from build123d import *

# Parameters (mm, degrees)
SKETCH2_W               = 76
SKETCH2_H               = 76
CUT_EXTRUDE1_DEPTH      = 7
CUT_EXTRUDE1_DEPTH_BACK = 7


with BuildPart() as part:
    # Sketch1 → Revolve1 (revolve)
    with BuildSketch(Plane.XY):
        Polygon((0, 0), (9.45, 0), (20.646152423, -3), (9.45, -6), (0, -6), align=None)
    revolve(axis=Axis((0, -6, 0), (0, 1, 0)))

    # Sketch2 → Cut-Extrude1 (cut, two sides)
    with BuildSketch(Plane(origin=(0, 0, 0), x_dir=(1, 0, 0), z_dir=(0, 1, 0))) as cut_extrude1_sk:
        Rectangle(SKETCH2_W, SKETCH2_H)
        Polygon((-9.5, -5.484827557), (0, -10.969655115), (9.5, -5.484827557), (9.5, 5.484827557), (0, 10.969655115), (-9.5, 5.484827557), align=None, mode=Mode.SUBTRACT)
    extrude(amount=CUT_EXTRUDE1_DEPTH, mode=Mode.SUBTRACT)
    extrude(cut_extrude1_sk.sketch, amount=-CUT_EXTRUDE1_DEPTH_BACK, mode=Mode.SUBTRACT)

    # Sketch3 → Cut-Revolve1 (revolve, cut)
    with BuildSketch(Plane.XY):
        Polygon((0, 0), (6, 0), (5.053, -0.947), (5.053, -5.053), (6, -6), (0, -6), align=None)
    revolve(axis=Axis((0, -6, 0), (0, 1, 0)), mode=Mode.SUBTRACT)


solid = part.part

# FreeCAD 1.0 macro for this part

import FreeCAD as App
import Part
import Sketcher
Q = App.Units.Quantity


def add_polygon(sketch, points):
    """Adds a closed chain of lines whose ends are joined by coincident constraints."""
    first, n = sketch.GeometryCount, len(points)
    for a, b in zip(points, points[1:] + points[:1]):
        sketch.addGeometry(Part.LineSegment(App.Vector(*a, 0), App.Vector(*b, 0)), False)
    for i in range(n):
        sketch.addConstraint(Sketcher.Constraint("Coincident", first + i, 2, first + (i + 1) % n, 1))

doc = App.newDocument("Part")
body = doc.addObject("PartDesign::Body", "Body")

sketch1 = body.newObject("Sketcher::SketchObject", "Sketch")
sketch1.AttachmentSupport = (doc.getObject("XY_Plane"), [""])
sketch1.MapMode = "FlatFace"
add_polygon(sketch1, [(9, 0), (0, 0), (0, -6), (9, -6), (21, -3)])
sketch1.addConstraint([
    Sketcher.Constraint("Horizontal", 0),
    Sketcher.Constraint("Vertical", 1),
    Sketcher.Constraint("Horizontal", 2),
    Sketcher.Constraint("Coincident", 0, 2, -1, 1),
    Sketcher.Constraint("Vertical", 2, 2, 4, 2),
    Sketcher.Constraint("Equal", 3, 4),
    Sketcher.Constraint("DistanceY", 1, 2, 1, 1, 6.0),
    Sketcher.Constraint("Angle", 3, Q("15 deg")),
    Sketcher.Constraint("DistanceX", 0, 2, 0, 1, 9.45),
])
revolution = body.newObject("PartDesign::Revolution", "Revolution")
revolution.Profile = sketch1
revolution.ReferenceAxis = (sketch1, ["V_Axis"])
revolution.Angle = 360

sketch2 = body.newObject("Sketcher::SketchObject", "Sketch001")
sketch2.AttachmentSupport = (doc.getObject("XZ_Plane"), [""])
sketch2.MapMode = "FlatFace"
add_polygon(sketch2, [(-38, -38), (-38, 38), (38, 38), (38, -38)])
add_polygon(sketch2, [(0, 11), (-10, 5), (-10, -5), (0, -11), (10, -5), (10, 5)])
sketch2.addConstraint([
    Sketcher.Constraint("Vertical", 0),
    Sketcher.Constraint("Horizontal", 1),
    Sketcher.Constraint("Vertical", 2),
    Sketcher.Constraint("Horizontal", 3),
    Sketcher.Constraint("Vertical", 5),
    Sketcher.Constraint("Vertical", 8),
    Sketcher.Constraint("Symmetric", 0, 2, 2, 2, -1, 1),
    Sketcher.Constraint("Symmetric", 4, 2, 7, 2, -1, 1),
    Sketcher.Constraint("Symmetric", 6, 2, 9, 2, -1, 1),
    Sketcher.Constraint("PointOnObject", 6, 2, -2),
    Sketcher.Constraint("Parallel", 6, 9),
    Sketcher.Constraint("Horizontal", 5, 2, 7, 2),
    Sketcher.Constraint("Equal", 3, 0),
    Sketcher.Constraint("DistanceX", 1, 1, 1, 2, 76.0),
    Sketcher.Constraint("Angle", 4, Q("-150 deg")),
    Sketcher.Constraint("DistanceX", 5, 2, 7, 2, 19.0),
    Sketcher.Constraint("DistanceY", 5, 2, 5, 1, 10.969655),
])
pocket1 = body.newObject("PartDesign::Pocket", "Pocket")
pocket1.Profile = sketch2
pocket1.Type = "ThroughAll"
pocket1.Midplane = True

sketch3 = body.newObject("Sketcher::SketchObject", "Sketch002")
sketch3.AttachmentSupport = (doc.getObject("XY_Plane"), [""])
sketch3.MapMode = "FlatFace"
add_polygon(sketch3, [(6, 0), (0, 0), (0, -6), (6, -6), (5.1, -5.1), (5.1, -0.9)])
sketch3.addConstraint([
    Sketcher.Constraint("Horizontal", 0),
    Sketcher.Constraint("Vertical", 1),
    Sketcher.Constraint("Horizontal", 2),
    Sketcher.Constraint("Vertical", 4),
    Sketcher.Constraint("Coincident", 0, 2, -1, 1),
    Sketcher.Constraint("Perpendicular", 3, 5),
    Sketcher.Constraint("Vertical", 2, 2, 5, 2),
    Sketcher.Constraint("Equal", 2, 1),
    Sketcher.Constraint("Equal", 3, 5),
    Sketcher.Constraint("DistanceX", 0, 2, 0, 1, 6.0),
    Sketcher.Constraint("DistanceY", 4, 1, 4, 2, 4.106),
])
groove = body.newObject("PartDesign::Groove", "Groove")
groove.Profile = sketch3
groove.ReferenceAxis = (sketch3, ["V_Axis"])
groove.Angle = 360

doc.recompute()
